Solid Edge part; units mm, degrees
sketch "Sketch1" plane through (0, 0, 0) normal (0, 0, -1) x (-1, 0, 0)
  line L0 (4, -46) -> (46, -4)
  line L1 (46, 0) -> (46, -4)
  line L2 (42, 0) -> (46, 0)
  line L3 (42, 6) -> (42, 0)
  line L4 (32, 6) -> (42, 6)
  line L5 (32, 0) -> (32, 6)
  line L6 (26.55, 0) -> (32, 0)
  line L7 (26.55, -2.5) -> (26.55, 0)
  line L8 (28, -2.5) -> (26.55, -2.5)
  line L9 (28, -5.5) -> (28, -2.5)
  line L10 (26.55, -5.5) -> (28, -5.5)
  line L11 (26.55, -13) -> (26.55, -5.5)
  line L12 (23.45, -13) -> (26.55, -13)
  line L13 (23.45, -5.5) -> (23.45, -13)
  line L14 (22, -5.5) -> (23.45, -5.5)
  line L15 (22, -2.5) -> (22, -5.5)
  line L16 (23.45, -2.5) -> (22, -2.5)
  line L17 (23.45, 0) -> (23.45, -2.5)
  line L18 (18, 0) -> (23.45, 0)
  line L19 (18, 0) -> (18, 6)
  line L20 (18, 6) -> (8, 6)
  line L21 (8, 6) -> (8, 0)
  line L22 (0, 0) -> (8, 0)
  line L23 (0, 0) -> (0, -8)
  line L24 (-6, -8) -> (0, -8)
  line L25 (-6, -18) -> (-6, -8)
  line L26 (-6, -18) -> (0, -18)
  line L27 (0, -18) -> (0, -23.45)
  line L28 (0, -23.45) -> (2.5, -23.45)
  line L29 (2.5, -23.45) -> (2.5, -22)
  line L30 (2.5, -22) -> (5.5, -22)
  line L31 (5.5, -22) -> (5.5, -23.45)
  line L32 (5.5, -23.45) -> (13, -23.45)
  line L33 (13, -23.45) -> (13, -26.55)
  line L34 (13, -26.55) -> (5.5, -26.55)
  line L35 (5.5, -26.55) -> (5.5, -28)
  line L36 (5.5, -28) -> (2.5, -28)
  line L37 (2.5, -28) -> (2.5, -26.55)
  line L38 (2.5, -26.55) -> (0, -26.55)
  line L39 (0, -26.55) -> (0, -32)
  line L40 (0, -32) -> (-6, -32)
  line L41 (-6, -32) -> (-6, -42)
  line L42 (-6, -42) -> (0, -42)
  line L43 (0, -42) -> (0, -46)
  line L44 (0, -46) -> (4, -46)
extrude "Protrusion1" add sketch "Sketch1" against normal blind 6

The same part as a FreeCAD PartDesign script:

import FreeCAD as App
import Part
import Sketcher
from FreeCAD import Vector


def add_polygon(sketch, points):
    """Adds a closed chain of lines whose ends are joined by coincident constraints."""
    first, n = sketch.GeometryCount, len(points)
    for a, b in zip(points, points[1:] + points[:1]):
        sketch.addGeometry(Part.LineSegment(App.Vector(*a, 0), App.Vector(*b, 0)), False)
    for i in range(n):
        sketch.addConstraint(Sketcher.Constraint("Coincident", first + i, 2, first + (i + 1) % n, 1))

doc = App.newDocument("Part")
body = doc.addObject("PartDesign::Body", "Body")

# Sketch on XY plane
sketch1 = body.newObject("Sketcher::SketchObject", "Sketch")
sketch1.AttachmentSupport = (doc.getObject("XY_Plane"), [""])
sketch1.MapMode = "FlatFace"
add_polygon(sketch1, [(0, -46), (-4, -46), (-46, -4), (-46, 0), (-42, 0), (-42, 6), (-32, 6), (-32, 0), (-26.6, 0), (-26.6, -2.5), (-28, -2.5), (-28, -5.5), (-26.6, -5.5), (-26.6, -13), (-23.4, -13), (-23.4, -5.5), (-22, -5.5), (-22, -2.5), (-23.4, -2.5), (-23.4, 0), (-18, 0), (-18, 6), (-8, 6), (-8, 0), (0, 0), (0, -8), (6, -8), (6, -18), (0, -18), (0, -23.4), (-2.5, -23.4), (-2.5, -22), (-5.5, -22), (-5.5, -23.4), (-13, -23.4), (-13, -26.6), (-5.5, -26.6), (-5.5, -28), (-2.5, -28), (-2.5, -26.6), (0, -26.6), (0, -32), (6, -32), (6, -42), (0, -42)])  # lines 0-44
sketch1.addConstraint([
    Sketcher.Constraint("Horizontal", 0),
    Sketcher.Constraint("Vertical", 2),
    Sketcher.Constraint("Horizontal", 3),
    Sketcher.Constraint("Vertical", 4),
    Sketcher.Constraint("Horizontal", 5),
    Sketcher.Constraint("Vertical", 6),
    Sketcher.Constraint("Horizontal", 7),
    Sketcher.Constraint("Vertical", 8),
    Sketcher.Constraint("Horizontal", 9),
    Sketcher.Constraint("Vertical", 10),
    Sketcher.Constraint("Horizontal", 11),
    Sketcher.Constraint("Vertical", 12),
    Sketcher.Constraint("Horizontal", 13),
    Sketcher.Constraint("Vertical", 14),
    Sketcher.Constraint("Horizontal", 15),
    Sketcher.Constraint("Vertical", 16),
    Sketcher.Constraint("Horizontal", 17),
    Sketcher.Constraint("Vertical", 18),
    Sketcher.Constraint("Horizontal", 19),
    Sketcher.Constraint("Vertical", 20),
    Sketcher.Constraint("Horizontal", 21),
    Sketcher.Constraint("Vertical", 22),
    Sketcher.Constraint("Horizontal", 23),
    Sketcher.Constraint("Vertical", 24),
    Sketcher.Constraint("Horizontal", 25),
    Sketcher.Constraint("Vertical", 26),
    Sketcher.Constraint("Horizontal", 27),
    Sketcher.Constraint("Vertical", 28),
    Sketcher.Constraint("Horizontal", 29),
    Sketcher.Constraint("Vertical", 30),
    Sketcher.Constraint("Horizontal", 31),
    Sketcher.Constraint("Vertical", 32),
    Sketcher.Constraint("Horizontal", 33),
    Sketcher.Constraint("Vertical", 34),
    Sketcher.Constraint("Horizontal", 35),
    Sketcher.Constraint("Vertical", 36),
    Sketcher.Constraint("Horizontal", 37),
    Sketcher.Constraint("Vertical", 38),
    Sketcher.Constraint("Horizontal", 39),
    Sketcher.Constraint("Vertical", 40),
    Sketcher.Constraint("Horizontal", 41),
    Sketcher.Constraint("Vertical", 42),
    Sketcher.Constraint("Horizontal", 43),
    Sketcher.Constraint("Vertical", 44),
    Sketcher.Constraint("Coincident", 23, 2, -1, 1),
    Sketcher.Constraint("PointOnObject", 2, 2, -1),
    Sketcher.Constraint("PointOnObject", 6, 2, -1),
    Sketcher.Constraint("PointOnObject", 18, 2, -1),
    Sketcher.Constraint("PointOnObject", 27, 2, -2),
    Sketcher.Constraint("PointOnObject", 39, 2, -2),
    Sketcher.Constraint("PointOnObject", 43, 2, -2),
    Sketcher.Constraint("Horizontal", 11, 2, 14, 2),
    Sketcher.Constraint("Horizontal", 9, 2, 16, 2),
    Sketcher.Constraint("Horizontal", 5, 2, 20, 2),
    Sketcher.Constraint("Horizontal", 29, 2, 32, 2),
    Sketcher.Constraint("Horizontal", 35, 2, 38, 2),
    Sketcher.Constraint("Vertical", 8, 2, 11, 2),
    Sketcher.Constraint("Vertical", 14, 2, 17, 2),
    Sketcher.Constraint("Vertical", 32, 2, 35, 2),
    Sketcher.Constraint("Vertical", 30, 2, 37, 2),
    Sketcher.Constraint("Vertical", 26, 2, 41, 2),
    Sketcher.Constraint("Equal", 0, 3),
    Sketcher.Constraint("Equal", 11, 15),
    Sketcher.Constraint("Equal", 7, 19),
    Sketcher.Constraint("Equal", 5, 21),
    Sketcher.Constraint("Equal", 3, 2),
    Sketcher.Constraint("Equal", 43, 4),
    Sketcher.Constraint("Equal", 39, 8),
    Sketcher.Constraint("Equal", 37, 10),
    Sketcher.Constraint("Equal", 35, 12),
    Sketcher.Constraint("Equal", 23, 24),
    Sketcher.Constraint("Equal", 21, 26),
    Sketcher.Constraint("Equal", 19, 28),
    Sketcher.Constraint("Equal", 17, 30),
    Sketcher.Constraint("Equal", 13, 34),
    Sketcher.Constraint("Equal", 32, 36),
    Sketcher.Constraint("Equal", 28, 40),
    Sketcher.Constraint("Equal", 26, 42),
    Sketcher.Constraint("Equal", 2, 44),
    Sketcher.Constraint("DistanceX", 0, 2, 0, 1, 4.0),
    Sketcher.Constraint("DistanceX", 5, 1, 5, 2, 10.0),
    Sketcher.Constraint("DistanceX", 23, 1, 23, 2, 8.0),
    Sketcher.Constraint("DistanceX", 25, 1, 25, 2, 6.0),
    Sketcher.Constraint("DistanceX", 31, 2, 31, 1, 3.0),
    Sketcher.Constraint("DistanceX", 13, 1, 13, 2, 3.1),
    Sketcher.Constraint("DistanceX", 29, 2, 29, 1, 2.5),
    Sketcher.Constraint("DistanceX", 33, 2, 33, 1, 7.5),
    Sketcher.Constraint("DistanceY", 0, 2, -1, 1, 46.0),
    Sketcher.Constraint("DistanceX", 9, 2, -1, 1, 28.0),
])
pad1 = body.newObject("PartDesign::Pad", "Pad")
pad1.Profile = sketch1
pad1.Length = 6

doc.recompute()
